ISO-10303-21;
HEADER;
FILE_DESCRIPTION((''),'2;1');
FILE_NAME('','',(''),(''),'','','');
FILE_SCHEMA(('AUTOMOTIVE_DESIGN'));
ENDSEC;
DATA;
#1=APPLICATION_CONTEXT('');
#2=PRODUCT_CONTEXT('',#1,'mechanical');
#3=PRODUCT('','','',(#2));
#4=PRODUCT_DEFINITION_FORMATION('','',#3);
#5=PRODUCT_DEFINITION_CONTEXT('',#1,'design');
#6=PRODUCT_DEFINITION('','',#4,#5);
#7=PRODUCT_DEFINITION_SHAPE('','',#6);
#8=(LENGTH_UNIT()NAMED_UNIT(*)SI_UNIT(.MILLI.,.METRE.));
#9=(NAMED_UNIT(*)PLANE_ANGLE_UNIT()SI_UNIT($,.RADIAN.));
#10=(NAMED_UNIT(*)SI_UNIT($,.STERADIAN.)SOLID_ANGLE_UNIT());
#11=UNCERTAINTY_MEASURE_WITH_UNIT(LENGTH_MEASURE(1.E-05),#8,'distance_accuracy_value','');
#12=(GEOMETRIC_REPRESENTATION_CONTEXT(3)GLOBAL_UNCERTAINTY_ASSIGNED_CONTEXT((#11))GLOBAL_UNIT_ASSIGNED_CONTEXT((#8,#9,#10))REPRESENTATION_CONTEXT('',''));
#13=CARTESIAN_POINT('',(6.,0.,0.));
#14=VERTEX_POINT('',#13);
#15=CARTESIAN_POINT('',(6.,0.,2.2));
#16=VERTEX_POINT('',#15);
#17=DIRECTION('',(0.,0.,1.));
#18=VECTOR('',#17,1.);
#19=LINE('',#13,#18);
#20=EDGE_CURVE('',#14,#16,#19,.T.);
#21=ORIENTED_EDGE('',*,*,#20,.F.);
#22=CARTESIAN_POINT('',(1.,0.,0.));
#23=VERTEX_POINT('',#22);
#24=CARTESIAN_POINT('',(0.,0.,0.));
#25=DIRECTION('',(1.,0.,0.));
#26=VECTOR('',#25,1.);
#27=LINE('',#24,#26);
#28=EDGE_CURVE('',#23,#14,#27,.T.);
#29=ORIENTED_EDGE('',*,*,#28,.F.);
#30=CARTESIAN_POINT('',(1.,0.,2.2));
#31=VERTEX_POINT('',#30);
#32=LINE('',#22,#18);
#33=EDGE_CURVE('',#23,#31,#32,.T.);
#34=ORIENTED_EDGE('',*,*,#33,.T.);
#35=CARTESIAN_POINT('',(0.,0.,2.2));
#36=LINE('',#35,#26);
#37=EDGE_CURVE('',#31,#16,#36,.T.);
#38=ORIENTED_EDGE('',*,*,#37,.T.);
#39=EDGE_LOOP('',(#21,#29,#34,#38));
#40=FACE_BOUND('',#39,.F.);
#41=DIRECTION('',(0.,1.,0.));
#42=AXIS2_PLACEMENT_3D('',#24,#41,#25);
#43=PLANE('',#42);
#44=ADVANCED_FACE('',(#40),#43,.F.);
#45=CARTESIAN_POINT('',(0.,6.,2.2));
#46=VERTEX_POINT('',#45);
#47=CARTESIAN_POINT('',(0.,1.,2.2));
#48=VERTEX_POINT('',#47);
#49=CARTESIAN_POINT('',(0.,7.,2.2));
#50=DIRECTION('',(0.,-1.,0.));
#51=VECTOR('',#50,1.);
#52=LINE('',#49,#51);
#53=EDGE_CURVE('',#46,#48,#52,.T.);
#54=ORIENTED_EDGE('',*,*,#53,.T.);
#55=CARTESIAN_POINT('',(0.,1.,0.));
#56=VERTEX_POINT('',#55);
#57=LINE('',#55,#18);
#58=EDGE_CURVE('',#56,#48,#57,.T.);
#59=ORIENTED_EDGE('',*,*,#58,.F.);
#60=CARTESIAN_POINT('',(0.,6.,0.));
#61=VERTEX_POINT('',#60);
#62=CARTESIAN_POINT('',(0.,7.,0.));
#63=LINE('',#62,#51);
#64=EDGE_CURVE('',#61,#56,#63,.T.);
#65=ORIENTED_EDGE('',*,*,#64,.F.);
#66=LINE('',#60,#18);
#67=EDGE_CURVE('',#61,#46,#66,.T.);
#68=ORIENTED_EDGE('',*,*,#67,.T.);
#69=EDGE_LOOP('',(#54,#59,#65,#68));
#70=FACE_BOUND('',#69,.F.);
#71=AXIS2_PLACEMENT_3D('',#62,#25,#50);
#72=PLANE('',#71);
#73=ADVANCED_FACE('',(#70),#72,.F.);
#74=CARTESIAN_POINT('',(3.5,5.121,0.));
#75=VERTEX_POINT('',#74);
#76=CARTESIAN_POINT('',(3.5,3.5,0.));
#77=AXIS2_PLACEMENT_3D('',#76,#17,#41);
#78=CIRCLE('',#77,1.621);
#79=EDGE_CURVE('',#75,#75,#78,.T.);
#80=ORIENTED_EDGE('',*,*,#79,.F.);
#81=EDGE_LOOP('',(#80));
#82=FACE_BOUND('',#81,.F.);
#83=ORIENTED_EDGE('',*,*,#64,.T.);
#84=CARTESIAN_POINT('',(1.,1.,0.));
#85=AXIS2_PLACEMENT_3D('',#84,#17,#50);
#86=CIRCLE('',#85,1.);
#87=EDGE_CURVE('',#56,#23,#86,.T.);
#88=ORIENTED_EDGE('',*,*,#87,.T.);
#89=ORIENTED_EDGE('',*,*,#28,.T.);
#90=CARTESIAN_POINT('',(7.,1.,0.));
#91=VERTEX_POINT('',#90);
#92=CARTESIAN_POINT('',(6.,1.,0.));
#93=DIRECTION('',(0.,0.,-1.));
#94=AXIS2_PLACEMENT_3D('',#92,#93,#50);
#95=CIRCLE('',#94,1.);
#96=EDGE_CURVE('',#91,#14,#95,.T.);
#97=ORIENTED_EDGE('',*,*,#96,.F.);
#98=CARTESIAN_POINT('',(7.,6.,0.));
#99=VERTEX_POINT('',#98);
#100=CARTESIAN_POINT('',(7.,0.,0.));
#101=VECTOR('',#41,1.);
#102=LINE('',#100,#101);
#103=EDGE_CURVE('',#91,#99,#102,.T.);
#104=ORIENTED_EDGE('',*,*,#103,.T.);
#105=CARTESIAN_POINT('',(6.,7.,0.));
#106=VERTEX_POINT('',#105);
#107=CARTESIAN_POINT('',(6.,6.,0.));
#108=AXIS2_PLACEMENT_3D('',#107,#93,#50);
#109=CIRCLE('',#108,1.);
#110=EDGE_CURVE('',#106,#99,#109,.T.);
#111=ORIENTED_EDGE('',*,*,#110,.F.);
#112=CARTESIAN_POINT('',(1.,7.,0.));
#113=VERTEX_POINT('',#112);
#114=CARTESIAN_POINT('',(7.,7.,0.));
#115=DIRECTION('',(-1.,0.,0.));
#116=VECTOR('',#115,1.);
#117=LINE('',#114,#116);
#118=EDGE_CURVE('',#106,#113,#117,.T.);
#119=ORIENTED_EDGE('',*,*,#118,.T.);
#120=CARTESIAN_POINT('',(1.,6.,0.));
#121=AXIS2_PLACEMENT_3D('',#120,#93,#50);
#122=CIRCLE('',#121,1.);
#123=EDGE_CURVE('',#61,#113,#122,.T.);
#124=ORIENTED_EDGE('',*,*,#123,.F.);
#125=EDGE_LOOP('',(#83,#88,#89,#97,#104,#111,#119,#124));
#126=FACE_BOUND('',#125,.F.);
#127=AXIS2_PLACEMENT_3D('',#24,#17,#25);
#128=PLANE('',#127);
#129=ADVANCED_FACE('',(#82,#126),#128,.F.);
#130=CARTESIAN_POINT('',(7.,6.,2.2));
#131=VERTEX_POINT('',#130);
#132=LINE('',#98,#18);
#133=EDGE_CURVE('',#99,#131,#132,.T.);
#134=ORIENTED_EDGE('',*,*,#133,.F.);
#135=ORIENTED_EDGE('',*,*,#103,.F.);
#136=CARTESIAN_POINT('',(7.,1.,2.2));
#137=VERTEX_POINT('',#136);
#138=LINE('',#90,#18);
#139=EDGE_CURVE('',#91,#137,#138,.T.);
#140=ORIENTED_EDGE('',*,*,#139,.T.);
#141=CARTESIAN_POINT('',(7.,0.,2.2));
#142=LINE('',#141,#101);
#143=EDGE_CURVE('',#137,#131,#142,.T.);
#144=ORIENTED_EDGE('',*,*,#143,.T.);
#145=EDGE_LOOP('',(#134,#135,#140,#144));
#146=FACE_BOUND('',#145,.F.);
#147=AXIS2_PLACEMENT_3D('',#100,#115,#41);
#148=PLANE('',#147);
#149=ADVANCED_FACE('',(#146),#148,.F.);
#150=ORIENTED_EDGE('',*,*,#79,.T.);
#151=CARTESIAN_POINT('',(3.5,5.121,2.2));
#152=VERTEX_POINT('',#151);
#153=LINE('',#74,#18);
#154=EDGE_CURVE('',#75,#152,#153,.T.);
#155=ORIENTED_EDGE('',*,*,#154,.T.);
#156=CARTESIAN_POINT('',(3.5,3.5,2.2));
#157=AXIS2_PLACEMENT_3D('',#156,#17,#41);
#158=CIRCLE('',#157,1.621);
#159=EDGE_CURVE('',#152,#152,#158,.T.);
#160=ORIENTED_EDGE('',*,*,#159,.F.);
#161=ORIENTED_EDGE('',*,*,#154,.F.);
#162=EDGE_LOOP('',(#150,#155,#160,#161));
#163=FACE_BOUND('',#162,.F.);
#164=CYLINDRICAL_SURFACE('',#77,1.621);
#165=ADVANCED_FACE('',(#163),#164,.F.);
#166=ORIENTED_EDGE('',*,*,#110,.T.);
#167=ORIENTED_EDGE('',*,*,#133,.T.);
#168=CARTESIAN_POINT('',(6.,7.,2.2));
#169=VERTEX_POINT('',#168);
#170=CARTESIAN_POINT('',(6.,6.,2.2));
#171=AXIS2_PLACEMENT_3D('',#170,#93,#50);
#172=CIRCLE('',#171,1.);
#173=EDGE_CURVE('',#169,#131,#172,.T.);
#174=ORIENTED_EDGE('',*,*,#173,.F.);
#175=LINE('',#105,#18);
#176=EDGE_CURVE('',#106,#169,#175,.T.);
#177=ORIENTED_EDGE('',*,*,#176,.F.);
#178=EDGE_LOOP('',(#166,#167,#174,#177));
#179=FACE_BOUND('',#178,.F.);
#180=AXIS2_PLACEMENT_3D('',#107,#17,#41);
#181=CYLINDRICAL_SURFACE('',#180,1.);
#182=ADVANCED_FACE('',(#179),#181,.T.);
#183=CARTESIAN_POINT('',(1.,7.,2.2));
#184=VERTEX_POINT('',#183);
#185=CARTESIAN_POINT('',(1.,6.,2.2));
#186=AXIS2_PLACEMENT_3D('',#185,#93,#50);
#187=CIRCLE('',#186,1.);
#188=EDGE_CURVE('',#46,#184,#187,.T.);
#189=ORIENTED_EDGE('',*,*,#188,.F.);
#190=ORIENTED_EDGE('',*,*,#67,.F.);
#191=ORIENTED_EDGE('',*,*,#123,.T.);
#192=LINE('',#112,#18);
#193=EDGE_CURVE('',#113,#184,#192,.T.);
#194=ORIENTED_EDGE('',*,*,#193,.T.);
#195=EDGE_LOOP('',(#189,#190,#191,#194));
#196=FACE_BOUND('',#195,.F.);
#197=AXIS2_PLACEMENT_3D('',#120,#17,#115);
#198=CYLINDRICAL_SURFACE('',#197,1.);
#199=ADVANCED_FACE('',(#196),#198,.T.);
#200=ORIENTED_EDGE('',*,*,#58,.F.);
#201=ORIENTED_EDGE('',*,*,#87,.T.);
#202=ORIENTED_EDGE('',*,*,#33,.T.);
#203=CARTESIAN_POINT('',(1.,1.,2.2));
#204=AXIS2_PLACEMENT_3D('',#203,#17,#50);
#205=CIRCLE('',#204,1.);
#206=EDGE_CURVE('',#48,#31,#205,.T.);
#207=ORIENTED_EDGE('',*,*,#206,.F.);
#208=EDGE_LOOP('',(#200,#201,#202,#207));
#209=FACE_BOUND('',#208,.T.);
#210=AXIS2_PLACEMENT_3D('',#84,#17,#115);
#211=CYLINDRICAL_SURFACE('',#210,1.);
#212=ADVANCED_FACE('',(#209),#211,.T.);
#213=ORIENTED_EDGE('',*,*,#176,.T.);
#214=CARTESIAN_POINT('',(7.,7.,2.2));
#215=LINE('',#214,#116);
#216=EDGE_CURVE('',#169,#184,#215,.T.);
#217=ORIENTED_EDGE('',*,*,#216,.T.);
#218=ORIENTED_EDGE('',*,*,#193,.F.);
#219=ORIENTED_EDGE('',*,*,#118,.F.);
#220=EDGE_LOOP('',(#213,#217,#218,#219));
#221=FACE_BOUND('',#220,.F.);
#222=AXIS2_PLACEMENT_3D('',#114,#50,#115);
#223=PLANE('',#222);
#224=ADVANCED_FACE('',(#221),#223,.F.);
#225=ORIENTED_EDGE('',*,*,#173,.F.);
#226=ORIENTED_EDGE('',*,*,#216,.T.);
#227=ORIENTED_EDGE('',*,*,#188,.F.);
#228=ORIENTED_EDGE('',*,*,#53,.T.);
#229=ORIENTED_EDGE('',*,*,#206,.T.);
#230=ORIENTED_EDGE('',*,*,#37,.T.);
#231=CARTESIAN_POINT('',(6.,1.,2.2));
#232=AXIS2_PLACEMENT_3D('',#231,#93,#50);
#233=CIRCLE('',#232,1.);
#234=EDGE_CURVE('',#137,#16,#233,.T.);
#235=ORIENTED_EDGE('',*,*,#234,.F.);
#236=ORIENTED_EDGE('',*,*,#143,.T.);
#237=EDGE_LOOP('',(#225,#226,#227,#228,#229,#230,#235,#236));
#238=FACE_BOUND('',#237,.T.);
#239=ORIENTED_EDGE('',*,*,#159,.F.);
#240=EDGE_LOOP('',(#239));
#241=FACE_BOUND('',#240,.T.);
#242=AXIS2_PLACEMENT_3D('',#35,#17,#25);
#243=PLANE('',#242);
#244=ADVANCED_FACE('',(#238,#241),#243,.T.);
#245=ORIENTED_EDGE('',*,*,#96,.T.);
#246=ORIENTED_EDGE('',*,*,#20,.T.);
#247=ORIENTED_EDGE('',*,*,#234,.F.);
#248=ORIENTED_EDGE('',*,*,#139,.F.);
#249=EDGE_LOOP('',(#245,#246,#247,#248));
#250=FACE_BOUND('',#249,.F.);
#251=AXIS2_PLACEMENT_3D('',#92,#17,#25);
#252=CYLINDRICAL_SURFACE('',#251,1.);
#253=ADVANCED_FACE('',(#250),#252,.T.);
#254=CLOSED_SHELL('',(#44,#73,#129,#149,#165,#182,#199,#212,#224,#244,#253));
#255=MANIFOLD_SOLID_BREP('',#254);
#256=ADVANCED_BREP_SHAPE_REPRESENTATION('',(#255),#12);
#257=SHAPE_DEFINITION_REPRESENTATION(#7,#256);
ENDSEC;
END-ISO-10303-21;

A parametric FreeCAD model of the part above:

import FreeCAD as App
import Part
import Sketcher
Q = App.Units.Quantity


def edges_at(feature, points):
    """Names of the edges that pass closest to the given points."""
    edges = feature.Shape.Edges
    near = lambda p: min(range(len(edges)), key=lambda i: edges[i].distToShape(Part.Vertex(*p))[0])
    return sorted({f"Edge{near(p) + 1}" for p in points})

doc = App.newDocument("Part")
params = doc.addObject("Spreadsheet::Sheet", "Params")
for row, (alias, value) in enumerate([
    ("sketch1_width", "7 mm"),
    ("pad1_length", "2.2 mm"),
    ("fillet_radius", "1 mm"),
    ("hole_diameter", "3.242 mm"),
    ("hole_depth", "11.8 mm"),
], start=1):
    params.set(f"A{row}", alias)
    params.set(f"B{row}", "=" + value)
    params.setAlias(f"B{row}", alias)

body = doc.addObject("PartDesign::Body", "Body")

# Sketch on XY plane
sketch1 = body.newObject("Sketcher::SketchObject", "Sketch")
sketch1.AttachmentSupport = (doc.getObject("XY_Plane"), [""])
sketch1.MapMode = "FlatFace"
sketch1.addGeometry(Part.LineSegment(App.Vector(0, 7, 0), App.Vector(0, 0, 0)), False)
sketch1.addGeometry(Part.LineSegment(App.Vector(0, 0, 0), App.Vector(7, 0, 0)), False)
sketch1.addGeometry(Part.LineSegment(App.Vector(7, 0, 0), App.Vector(7, 7, 0)), False)
sketch1.addGeometry(Part.LineSegment(App.Vector(7, 7, 0), App.Vector(0, 7, 0)), False)
sketch1.addConstraint(Sketcher.Constraint("Coincident", 0, 2, 1, 1))
sketch1.addConstraint(Sketcher.Constraint("Coincident", 1, 2, 2, 1))
sketch1.addConstraint(Sketcher.Constraint("Coincident", 2, 2, 3, 1))
sketch1.addConstraint(Sketcher.Constraint("Coincident", 3, 2, 0, 1))
sketch1.addConstraint(Sketcher.Constraint("Vertical", 0))
sketch1.addConstraint(Sketcher.Constraint("Horizontal", 1))
sketch1.addConstraint(Sketcher.Constraint("Vertical", 2))
sketch1.addConstraint(Sketcher.Constraint("Horizontal", 3))
sketch1.addConstraint(Sketcher.Constraint("Coincident", 0, 2, -1, 1))
sketch1.addConstraint(Sketcher.Constraint("Equal", 3, 0))
sketch1.addConstraint(Sketcher.Constraint("DistanceX", 1, 1, 1, 2, Q("7 mm")))
sketch1.setExpression("Constraints[10]", "Params.sketch1_width")
pad1 = body.newObject("PartDesign::Pad", "Pad")
pad1.Profile = sketch1
pad1.setExpression("Length", "Params.pad1_length")
doc.recompute()

fillet = body.newObject("PartDesign::Fillet", "Fillet")
fillet.Base = (pad1, edges_at(pad1, [
    (7, 7, 1.1),
    (0, 7, 1.1),
    (0, 0, 1.1),
    (7, 0, 1.1),
]))
fillet.setExpression("Radius", "Params.fillet_radius")

# Sketch on XY plane
sketch2 = body.newObject("Sketcher::SketchObject", "Sketch001")
sketch2.AttachmentSupport = (doc.getObject("XY_Plane"), [""])
sketch2.MapMode = "FlatFace"
sketch2.addGeometry(Part.Circle(App.Vector(3.5, 3.5, 0), App.Vector(0, 0, 1), 1.6), False)
sketch2.addConstraint(Sketcher.Constraint("Diameter", 0, Q("3.242 mm")))
sketch2.addConstraint(Sketcher.Constraint("DistanceX", -1, 1, 0, 3, Q("3.5 mm")))
sketch2.addConstraint(Sketcher.Constraint("DistanceY", -1, 1, 0, 3, Q("3.5 mm")))
doc.recompute()
hole = body.newObject("PartDesign::Hole", "Hole")
hole.Profile = sketch2
hole.ThreadType = "None"
hole.setExpression("Diameter", "Params.hole_diameter")
hole.DepthType = "Dimension"
hole.setExpression("Depth", "Params.hole_depth")
hole.DrillPoint = "Flat"
hole.Reversed = True

doc.recompute()
